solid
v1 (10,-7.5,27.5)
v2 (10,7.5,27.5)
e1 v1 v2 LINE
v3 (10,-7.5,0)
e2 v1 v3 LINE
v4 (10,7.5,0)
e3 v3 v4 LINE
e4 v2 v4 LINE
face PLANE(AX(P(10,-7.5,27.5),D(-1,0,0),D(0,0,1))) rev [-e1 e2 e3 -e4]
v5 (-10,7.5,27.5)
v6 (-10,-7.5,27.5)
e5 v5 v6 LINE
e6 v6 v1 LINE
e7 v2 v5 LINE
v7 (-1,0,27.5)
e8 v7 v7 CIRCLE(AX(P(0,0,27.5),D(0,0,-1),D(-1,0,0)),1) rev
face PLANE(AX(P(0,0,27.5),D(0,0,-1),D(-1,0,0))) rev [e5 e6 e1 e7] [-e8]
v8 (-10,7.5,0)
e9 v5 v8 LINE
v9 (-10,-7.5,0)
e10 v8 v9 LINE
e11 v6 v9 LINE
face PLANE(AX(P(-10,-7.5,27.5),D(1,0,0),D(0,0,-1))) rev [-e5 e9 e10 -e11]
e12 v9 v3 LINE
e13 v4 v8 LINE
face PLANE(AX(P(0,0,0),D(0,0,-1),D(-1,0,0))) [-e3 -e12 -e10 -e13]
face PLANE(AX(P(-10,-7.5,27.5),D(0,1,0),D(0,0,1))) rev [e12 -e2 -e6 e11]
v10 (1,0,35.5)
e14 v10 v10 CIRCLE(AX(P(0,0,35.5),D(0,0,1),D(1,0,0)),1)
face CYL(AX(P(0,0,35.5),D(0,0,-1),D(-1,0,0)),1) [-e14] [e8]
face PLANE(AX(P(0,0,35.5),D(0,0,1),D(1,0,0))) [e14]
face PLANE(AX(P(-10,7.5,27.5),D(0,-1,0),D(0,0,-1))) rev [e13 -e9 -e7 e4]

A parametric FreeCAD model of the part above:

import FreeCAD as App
import Part
import Sketcher

doc = App.newDocument("Part")
body = doc.addObject("PartDesign::Body", "Body")

sketch1 = doc.addObject("Sketcher::SketchObject", "Sketch")
body.addObject(sketch1)
sketch1.AttachmentSupport = (doc.XY_Plane, [""])
sketch1.MapMode = "FlatFace"
sketch1.addGeometry(Part.LineSegment(App.Vector(-10, 7.5, 0), App.Vector(-10, -7.5, 0)), False)
sketch1.addGeometry(Part.LineSegment(App.Vector(-10, -7.5, 0), App.Vector(10, -7.5, 0)), False)
sketch1.addGeometry(Part.LineSegment(App.Vector(10, -7.5, 0), App.Vector(10, 7.5, 0)), False)
sketch1.addGeometry(Part.LineSegment(App.Vector(10, 7.5, 0), App.Vector(-10, 7.5, 0)), False)
sketch1.addConstraint(Sketcher.Constraint("Coincident", 0, 2, 1, 1))
sketch1.addConstraint(Sketcher.Constraint("Coincident", 1, 2, 2, 1))
sketch1.addConstraint(Sketcher.Constraint("Coincident", 2, 2, 3, 1))
sketch1.addConstraint(Sketcher.Constraint("Coincident", 3, 2, 0, 1))
sketch1.addConstraint(Sketcher.Constraint("Vertical", 0))
sketch1.addConstraint(Sketcher.Constraint("Horizontal", 1))
sketch1.addConstraint(Sketcher.Constraint("Vertical", 2))
sketch1.addConstraint(Sketcher.Constraint("Horizontal", 3))
sketch1.addConstraint(Sketcher.Constraint("Symmetric", 0, 2, 2, 2, -1, 1))
sketch1.addConstraint(Sketcher.Constraint("DistanceX", 1, 1, 1, 2, 20.0))
sketch1.addConstraint(Sketcher.Constraint("DistanceY", 0, 2, 0, 1, 15.0))
pad1 = doc.addObject("PartDesign::Pad", "Pad")
body.addObject(pad1)
pad1.Profile = sketch1
pad1.Length = 27.5

sketch2 = doc.addObject("Sketcher::SketchObject", "Sketch001")
body.addObject(sketch2)
sketch2.AttachmentSupport = (doc.XY_Plane, [""])
sketch2.MapMode = "FlatFace"
sketch2.AttachmentOffset = App.Placement(App.Vector(0, 0, 27.5), App.Rotation())
sketch2.addGeometry(Part.Circle(App.Vector(0, 0, 0), App.Vector(0, 0, 1), 1), False)
sketch2.addConstraint(Sketcher.Constraint("Coincident", 0, 3, -1, 1))
sketch2.addConstraint(Sketcher.Constraint("Diameter", 0, 2.0))
pad2 = doc.addObject("PartDesign::Pad", "Pad001")
body.addObject(pad2)
pad2.Profile = sketch2
pad2.Length = 8

doc.recompute()
